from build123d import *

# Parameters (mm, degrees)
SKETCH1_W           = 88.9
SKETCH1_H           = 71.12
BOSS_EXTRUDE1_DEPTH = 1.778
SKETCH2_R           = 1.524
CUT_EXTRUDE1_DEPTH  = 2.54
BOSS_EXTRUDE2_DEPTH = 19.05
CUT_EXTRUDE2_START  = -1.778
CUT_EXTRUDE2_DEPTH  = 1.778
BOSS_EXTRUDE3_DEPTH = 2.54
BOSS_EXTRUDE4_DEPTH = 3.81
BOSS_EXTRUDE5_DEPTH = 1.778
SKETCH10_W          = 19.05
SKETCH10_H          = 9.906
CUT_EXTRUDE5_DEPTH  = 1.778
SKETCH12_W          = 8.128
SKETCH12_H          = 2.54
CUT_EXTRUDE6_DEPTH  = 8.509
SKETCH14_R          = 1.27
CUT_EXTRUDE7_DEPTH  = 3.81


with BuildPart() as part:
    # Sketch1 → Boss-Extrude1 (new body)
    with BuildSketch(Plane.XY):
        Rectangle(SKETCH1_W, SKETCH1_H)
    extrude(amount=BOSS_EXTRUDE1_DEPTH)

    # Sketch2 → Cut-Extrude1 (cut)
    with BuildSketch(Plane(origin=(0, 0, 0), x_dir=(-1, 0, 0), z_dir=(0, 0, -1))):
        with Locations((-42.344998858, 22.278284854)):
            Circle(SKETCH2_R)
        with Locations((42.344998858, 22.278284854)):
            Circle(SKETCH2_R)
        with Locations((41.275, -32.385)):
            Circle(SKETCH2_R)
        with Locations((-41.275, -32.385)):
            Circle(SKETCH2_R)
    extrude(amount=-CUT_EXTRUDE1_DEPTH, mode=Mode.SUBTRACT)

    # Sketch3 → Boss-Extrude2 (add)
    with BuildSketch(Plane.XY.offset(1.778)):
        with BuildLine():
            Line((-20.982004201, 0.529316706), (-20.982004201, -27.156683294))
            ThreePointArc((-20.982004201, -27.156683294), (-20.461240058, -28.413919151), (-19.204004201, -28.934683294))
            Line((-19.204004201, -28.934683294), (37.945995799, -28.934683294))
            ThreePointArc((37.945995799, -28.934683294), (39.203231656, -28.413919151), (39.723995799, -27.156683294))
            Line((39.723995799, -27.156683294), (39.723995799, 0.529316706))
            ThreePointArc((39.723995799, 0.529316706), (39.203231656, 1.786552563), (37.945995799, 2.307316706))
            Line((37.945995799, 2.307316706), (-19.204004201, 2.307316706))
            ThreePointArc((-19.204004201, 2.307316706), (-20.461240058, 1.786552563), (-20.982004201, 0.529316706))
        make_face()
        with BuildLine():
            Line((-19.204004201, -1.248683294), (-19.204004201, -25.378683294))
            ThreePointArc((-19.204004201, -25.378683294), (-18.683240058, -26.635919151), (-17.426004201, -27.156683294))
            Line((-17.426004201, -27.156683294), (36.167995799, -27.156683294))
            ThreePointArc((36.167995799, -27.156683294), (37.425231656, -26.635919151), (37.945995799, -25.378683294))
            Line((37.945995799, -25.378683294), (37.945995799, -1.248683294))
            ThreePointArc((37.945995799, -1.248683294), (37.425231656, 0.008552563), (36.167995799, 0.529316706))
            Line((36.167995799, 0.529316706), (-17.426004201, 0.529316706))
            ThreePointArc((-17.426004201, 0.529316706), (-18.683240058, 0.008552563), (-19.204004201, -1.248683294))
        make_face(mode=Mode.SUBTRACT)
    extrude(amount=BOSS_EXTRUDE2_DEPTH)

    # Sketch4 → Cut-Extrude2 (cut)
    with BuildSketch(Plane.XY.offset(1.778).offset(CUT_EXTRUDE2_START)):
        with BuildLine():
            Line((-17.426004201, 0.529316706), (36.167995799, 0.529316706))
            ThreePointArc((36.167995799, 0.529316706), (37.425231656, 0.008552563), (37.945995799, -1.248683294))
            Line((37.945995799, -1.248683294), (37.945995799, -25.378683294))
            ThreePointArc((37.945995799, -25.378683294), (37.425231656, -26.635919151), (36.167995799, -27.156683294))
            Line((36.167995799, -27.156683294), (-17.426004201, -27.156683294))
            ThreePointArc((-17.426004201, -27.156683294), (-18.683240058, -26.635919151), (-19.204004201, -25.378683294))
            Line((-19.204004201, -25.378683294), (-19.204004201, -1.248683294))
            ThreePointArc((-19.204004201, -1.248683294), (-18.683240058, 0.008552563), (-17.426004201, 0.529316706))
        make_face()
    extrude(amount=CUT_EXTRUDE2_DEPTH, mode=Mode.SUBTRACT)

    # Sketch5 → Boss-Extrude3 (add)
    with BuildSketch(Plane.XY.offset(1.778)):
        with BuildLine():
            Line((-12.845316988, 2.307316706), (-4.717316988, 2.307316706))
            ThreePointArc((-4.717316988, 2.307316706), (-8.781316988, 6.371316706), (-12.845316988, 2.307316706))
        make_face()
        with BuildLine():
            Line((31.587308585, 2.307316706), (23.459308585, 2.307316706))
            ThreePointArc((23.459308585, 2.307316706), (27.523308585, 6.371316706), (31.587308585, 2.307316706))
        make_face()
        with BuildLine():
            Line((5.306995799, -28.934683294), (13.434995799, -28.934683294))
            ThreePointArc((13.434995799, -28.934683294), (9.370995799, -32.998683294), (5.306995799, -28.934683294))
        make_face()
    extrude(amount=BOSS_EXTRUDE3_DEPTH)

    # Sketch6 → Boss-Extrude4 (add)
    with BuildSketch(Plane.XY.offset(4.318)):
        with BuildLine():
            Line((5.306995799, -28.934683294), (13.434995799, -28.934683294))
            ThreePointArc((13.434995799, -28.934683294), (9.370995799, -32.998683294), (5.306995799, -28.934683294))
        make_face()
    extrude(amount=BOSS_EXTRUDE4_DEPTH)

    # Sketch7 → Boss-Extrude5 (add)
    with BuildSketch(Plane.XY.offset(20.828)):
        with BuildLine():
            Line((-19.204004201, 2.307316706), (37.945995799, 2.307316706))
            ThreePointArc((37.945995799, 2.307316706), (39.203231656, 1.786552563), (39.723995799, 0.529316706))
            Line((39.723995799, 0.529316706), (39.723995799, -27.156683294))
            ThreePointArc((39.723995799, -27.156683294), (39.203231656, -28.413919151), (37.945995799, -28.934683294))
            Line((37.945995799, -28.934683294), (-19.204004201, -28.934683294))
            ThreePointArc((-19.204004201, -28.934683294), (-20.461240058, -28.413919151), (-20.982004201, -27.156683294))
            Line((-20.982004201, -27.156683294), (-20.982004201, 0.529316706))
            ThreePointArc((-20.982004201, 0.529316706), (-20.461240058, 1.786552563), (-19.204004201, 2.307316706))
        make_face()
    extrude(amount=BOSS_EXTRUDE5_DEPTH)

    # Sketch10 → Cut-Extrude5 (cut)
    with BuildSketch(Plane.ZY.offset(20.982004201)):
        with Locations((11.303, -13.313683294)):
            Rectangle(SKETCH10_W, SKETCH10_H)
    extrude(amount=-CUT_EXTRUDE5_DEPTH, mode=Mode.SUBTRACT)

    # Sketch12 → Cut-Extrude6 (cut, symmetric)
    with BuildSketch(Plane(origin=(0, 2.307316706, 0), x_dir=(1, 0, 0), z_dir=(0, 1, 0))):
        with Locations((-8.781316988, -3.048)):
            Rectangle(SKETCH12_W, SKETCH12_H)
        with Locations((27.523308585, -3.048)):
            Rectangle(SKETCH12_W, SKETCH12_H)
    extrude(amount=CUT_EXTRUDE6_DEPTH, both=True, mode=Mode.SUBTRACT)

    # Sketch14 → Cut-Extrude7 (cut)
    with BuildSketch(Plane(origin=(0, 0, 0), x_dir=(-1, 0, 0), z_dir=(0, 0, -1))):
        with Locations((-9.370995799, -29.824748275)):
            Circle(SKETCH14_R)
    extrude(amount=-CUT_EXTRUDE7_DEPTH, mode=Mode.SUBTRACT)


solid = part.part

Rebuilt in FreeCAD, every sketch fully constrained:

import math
import FreeCAD as App
import Part
import Sketcher

V = App.Vector
Q = App.Units.Quantity


def add_polygon(sketch, points):
    """Adds a closed chain of lines whose ends are joined by coincident constraints."""
    first, n = sketch.GeometryCount, len(points)
    for a, b in zip(points, points[1:] + points[:1]):
        sketch.addGeometry(Part.LineSegment(App.Vector(*a, 0), App.Vector(*b, 0)), False)
    for i in range(n):
        sketch.addConstraint(Sketcher.Constraint("Coincident", first + i, 2, first + (i + 1) % n, 1))

doc = App.newDocument("Part")
body = doc.addObject("PartDesign::Body", "Body")

# Sketch on XY plane
sketch1 = doc.addObject("Sketcher::SketchObject", "Sketch")
body.addObject(sketch1)
sketch1.AttachmentSupport = (doc.XY_Plane, [""])
sketch1.MapMode = "FlatFace"
add_polygon(sketch1, [(-44, 36), (-44, -36), (44, -36), (44, 36)])  # lines 0-3
sketch1.addConstraint(Sketcher.Constraint("Vertical", 0))
sketch1.addConstraint(Sketcher.Constraint("Horizontal", 1))
sketch1.addConstraint(Sketcher.Constraint("Vertical", 2))
sketch1.addConstraint(Sketcher.Constraint("Horizontal", 3))
sketch1.addConstraint(Sketcher.Constraint("Symmetric", 0, 2, 2, 2, -1, 1))
sketch1.addConstraint(Sketcher.Constraint("DistanceX", 1, 1, 1, 2, Q("3.5 in")))
sketch1.addConstraint(Sketcher.Constraint("DistanceY", 0, 2, 0, 1, Q("2.8 in")))
pad1 = doc.addObject("PartDesign::Pad", "Pad")
body.addObject(pad1)
pad1.Profile = sketch1
pad1.Length = Q("0.07 in")

# Sketch on XY plane
sketch2 = doc.addObject("Sketcher::SketchObject", "Sketch001")
body.addObject(sketch2)
sketch2.AttachmentSupport = (doc.XY_Plane, [""])
sketch2.MapMode = "FlatFace"
sketch2.addGeometry(Part.Circle(V(42.3, 22.3, 0), V(0, 0, 1), 1.5), False)
sketch2.addGeometry(Part.Circle(V(-42.3, 22.3, 0), V(0, 0, 1), 1.5), False)
sketch2.addGeometry(Part.Circle(V(-41.3, -32.4, 0), V(0, 0, 1), 1.5), False)
sketch2.addGeometry(Part.Circle(V(41.3, -32.4, 0), V(0, 0, 1), 1.5), False)
sketch2.addConstraint(Sketcher.Constraint("Equal", 0, 1))
sketch2.addConstraint(Sketcher.Constraint("Equal", 1, 2))
sketch2.addConstraint(Sketcher.Constraint("Equal", 2, 3))
sketch2.addConstraint(Sketcher.Constraint("Symmetric", 0, 3, 1, 3, -2))
sketch2.addConstraint(Sketcher.Constraint("Symmetric", 2, 3, 3, 3, -2))
sketch2.addConstraint(Sketcher.Constraint("Diameter", 0, Q("0.12 in")))
sketch2.addConstraint(Sketcher.Constraint("DistanceX", 2, 3, 3, 3, Q("3.25 in")))
sketch2.addConstraint(Sketcher.Constraint("DistanceY", 2, 3, -1, 1, Q("1.275 in")))
sketch2.addConstraint(Sketcher.Constraint("DistanceX", -1, 1, 0, 3, 42.344999))
sketch2.addConstraint(Sketcher.Constraint("DistanceY", -1, 1, 0, 3, 22.278285))
pocket1 = doc.addObject("PartDesign::Pocket", "Pocket")
body.addObject(pocket1)
pocket1.Profile = sketch2
pocket1.Length = Q("0.1 in")
pocket1.Reversed = True

# Sketch on XY plane
sketch3 = doc.addObject("Sketcher::SketchObject", "Sketch002")
body.addObject(sketch3)
sketch3.AttachmentSupport = (doc.XY_Plane, [""])
sketch3.MapMode = "FlatFace"
sketch3.AttachmentOffset = App.Placement(V(0, 0, 0.07 * 25.4), App.Rotation())
sketch3.addGeometry(Part.LineSegment(V(-21, 0.5, 0), V(-21, -27.2, 0)), False)
sketch3.addGeometry(Part.ArcOfCircle(Part.Circle(V(-19.2, -27.2, 0), V(0, 0, 1), 1.8), math.radians(180), math.radians(270)), False)
sketch3.addGeometry(Part.LineSegment(V(-19.2, -28.9, 0), V(37.9, -28.9, 0)), False)
sketch3.addGeometry(Part.ArcOfCircle(Part.Circle(V(37.9, -27.2, 0), V(0, 0, 1), 1.8), math.radians(-90), math.radians(0)), False)
sketch3.addGeometry(Part.LineSegment(V(39.7, -27.2, 0), V(39.7, 0.5, 0)), False)
sketch3.addGeometry(Part.ArcOfCircle(Part.Circle(V(37.9, 0.5, 0), V(0, 0, 1), 1.8), math.radians(0), math.radians(90)), False)
sketch3.addGeometry(Part.LineSegment(V(37.9, 2.3, 0), V(-19.2, 2.3, 0)), False)
sketch3.addGeometry(Part.ArcOfCircle(Part.Circle(V(-19.2, 0.5, 0), V(0, 0, 1), 1.8), math.radians(90), math.radians(180)), False)
sketch3.addGeometry(Part.LineSegment(V(-19.2, -25.4, 0), V(-19.2, -1.2, 0)), False)
sketch3.addGeometry(Part.ArcOfCircle(Part.Circle(V(-17.4, -1.2, 0), V(0, 0, 1), 1.8), math.radians(90), math.radians(180)), False)
sketch3.addGeometry(Part.LineSegment(V(-17.4, 0.5, 0), V(36.2, 0.5, 0)), False)
sketch3.addGeometry(Part.ArcOfCircle(Part.Circle(V(36.2, -1.2, 0), V(0, 0, 1), 1.8), math.radians(0), math.radians(90)), False)
sketch3.addGeometry(Part.LineSegment(V(37.9, -1.2, 0), V(37.9, -25.4, 0)), False)
sketch3.addGeometry(Part.ArcOfCircle(Part.Circle(V(36.2, -25.4, 0), V(0, 0, 1), 1.8), math.radians(-90), math.radians(0)), False)
sketch3.addGeometry(Part.LineSegment(V(36.2, -27.2, 0), V(-17.4, -27.2, 0)), False)
sketch3.addGeometry(Part.ArcOfCircle(Part.Circle(V(-17.4, -25.4, 0), V(0, 0, 1), 1.8), math.radians(180), math.radians(270)), False)
sketch3.addConstraint(Sketcher.Constraint("Tangent", 0, 2, 1, 1))
sketch3.addConstraint(Sketcher.Constraint("Tangent", 1, 2, 2, 1))
sketch3.addConstraint(Sketcher.Constraint("Tangent", 2, 2, 3, 1))
sketch3.addConstraint(Sketcher.Constraint("Tangent", 3, 2, 4, 1))
sketch3.addConstraint(Sketcher.Constraint("Tangent", 4, 2, 5, 1))
sketch3.addConstraint(Sketcher.Constraint("Tangent", 5, 2, 6, 1))
sketch3.addConstraint(Sketcher.Constraint("Tangent", 6, 2, 7, 1))
sketch3.addConstraint(Sketcher.Constraint("Tangent", 7, 2, 0, 1))
sketch3.addConstraint(Sketcher.Constraint("Tangent", 8, 2, 9, 2))
sketch3.addConstraint(Sketcher.Constraint("Tangent", 9, 1, 10, 1))
sketch3.addConstraint(Sketcher.Constraint("Tangent", 10, 2, 11, 2))
sketch3.addConstraint(Sketcher.Constraint("Tangent", 11, 1, 12, 1))
sketch3.addConstraint(Sketcher.Constraint("Tangent", 12, 2, 13, 2))
sketch3.addConstraint(Sketcher.Constraint("Tangent", 13, 1, 14, 1))
sketch3.addConstraint(Sketcher.Constraint("Tangent", 14, 2, 15, 2))
sketch3.addConstraint(Sketcher.Constraint("Tangent", 15, 1, 8, 1))
sketch3.addConstraint(Sketcher.Constraint("Vertical", 0))
sketch3.addConstraint(Sketcher.Constraint("Horizontal", 2))
sketch3.addConstraint(Sketcher.Constraint("Vertical", 4))
sketch3.addConstraint(Sketcher.Constraint("Horizontal", 6))
sketch3.addConstraint(Sketcher.Constraint("Vertical", 8))
sketch3.addConstraint(Sketcher.Constraint("Horizontal", 10))
sketch3.addConstraint(Sketcher.Constraint("Vertical", 12))
sketch3.addConstraint(Sketcher.Constraint("Horizontal", 14))
sketch3.addConstraint(Sketcher.Constraint("Equal", 1, 3))
sketch3.addConstraint(Sketcher.Constraint("Equal", 3, 5))
sketch3.addConstraint(Sketcher.Constraint("Equal", 5, 7))
sketch3.addConstraint(Sketcher.Constraint("Equal", 7, 9))
sketch3.addConstraint(Sketcher.Constraint("Equal", 9, 11))
sketch3.addConstraint(Sketcher.Constraint("Equal", 11, 13))
sketch3.addConstraint(Sketcher.Constraint("Equal", 13, 15))
sketch3.addConstraint(Sketcher.Constraint("Horizontal", 7, 2, 9, 1))
sketch3.addConstraint(Sketcher.Constraint("Horizontal", 3, 2, 13, 1))
sketch3.addConstraint(Sketcher.Constraint("Vertical", 6, 2, 8, 2))
sketch3.addConstraint(Sketcher.Constraint("Vertical", 5, 2, 11, 1))
sketch3.addConstraint(Sketcher.Constraint("Radius", 1, Q("0.07 in")))
sketch3.addConstraint(Sketcher.Constraint("DistanceX", 2, 1, 2, 2, Q("2.25 in")))
sketch3.addConstraint(Sketcher.Constraint("DistanceY", 0, 2, 0, 1, Q("1.09 in")))
sketch3.addConstraint(Sketcher.Constraint("DistanceX", 1, 3, -1, 1, 19.204004))
sketch3.addConstraint(Sketcher.Constraint("DistanceY", 1, 3, -1, 1, 27.156683))
pad2 = doc.addObject("PartDesign::Pad", "Pad001")
body.addObject(pad2)
pad2.Profile = sketch3
pad2.Length = Q("0.75 in")

# Sketch on XY plane
sketch4 = doc.addObject("Sketcher::SketchObject", "Sketch003")
body.addObject(sketch4)
sketch4.AttachmentSupport = (doc.XY_Plane, [""])
sketch4.MapMode = "FlatFace"
sketch4.addGeometry(Part.LineSegment(V(36.2, 0.5, 0), V(-17.4, 0.5, 0)), False)
sketch4.addGeometry(Part.ArcOfCircle(Part.Circle(V(-17.4, -1.2, 0), V(0, 0, 1), 1.8), math.radians(90), math.radians(180)), False)
sketch4.addGeometry(Part.LineSegment(V(-19.2, -1.2, 0), V(-19.2, -25.4, 0)), False)
sketch4.addGeometry(Part.ArcOfCircle(Part.Circle(V(-17.4, -25.4, 0), V(0, 0, 1), 1.8), math.radians(180), math.radians(270)), False)
sketch4.addGeometry(Part.LineSegment(V(-17.4, -27.2, 0), V(36.2, -27.2, 0)), False)
sketch4.addGeometry(Part.ArcOfCircle(Part.Circle(V(36.2, -25.4, 0), V(0, 0, 1), 1.8), math.radians(-90), math.radians(0)), False)
sketch4.addGeometry(Part.LineSegment(V(37.9, -25.4, 0), V(37.9, -1.2, 0)), False)
sketch4.addGeometry(Part.ArcOfCircle(Part.Circle(V(36.2, -1.2, 0), V(0, 0, 1), 1.8), math.radians(0), math.radians(90)), False)
sketch4.addConstraint(Sketcher.Constraint("Tangent", 0, 2, 1, 1))
sketch4.addConstraint(Sketcher.Constraint("Tangent", 1, 2, 2, 1))
sketch4.addConstraint(Sketcher.Constraint("Tangent", 2, 2, 3, 1))
sketch4.addConstraint(Sketcher.Constraint("Tangent", 3, 2, 4, 1))
sketch4.addConstraint(Sketcher.Constraint("Tangent", 4, 2, 5, 1))
sketch4.addConstraint(Sketcher.Constraint("Tangent", 5, 2, 6, 1))
sketch4.addConstraint(Sketcher.Constraint("Tangent", 6, 2, 7, 1))
sketch4.addConstraint(Sketcher.Constraint("Tangent", 7, 2, 0, 1))
sketch4.addConstraint(Sketcher.Constraint("Horizontal", 0))
sketch4.addConstraint(Sketcher.Constraint("Vertical", 2))
sketch4.addConstraint(Sketcher.Constraint("Horizontal", 4))
sketch4.addConstraint(Sketcher.Constraint("Vertical", 6))
sketch4.addConstraint(Sketcher.Constraint("Equal", 1, 3))
sketch4.addConstraint(Sketcher.Constraint("Equal", 3, 5))
sketch4.addConstraint(Sketcher.Constraint("Equal", 5, 7))
sketch4.addConstraint(Sketcher.Constraint("Radius", 1, Q("0.07 in")))
sketch4.addConstraint(Sketcher.Constraint("DistanceX", 0, 2, 0, 1, Q("2.11 in")))
sketch4.addConstraint(Sketcher.Constraint("DistanceY", 2, 2, 2, 1, Q("0.95 in")))
sketch4.addConstraint(Sketcher.Constraint("DistanceX", 1, 3, -1, 1, 17.426004))
sketch4.addConstraint(Sketcher.Constraint("DistanceY", 1, 3, -1, 1, 1.248683))
pocket2 = doc.addObject("PartDesign::Pocket", "Pocket001")
body.addObject(pocket2)
pocket2.Profile = sketch4
pocket2.Length = Q("0.07 in")
pocket2.Reversed = True

# Sketch on XY plane
sketch5 = doc.addObject("Sketcher::SketchObject", "Sketch004")
body.addObject(sketch5)
sketch5.AttachmentSupport = (doc.XY_Plane, [""])
sketch5.MapMode = "FlatFace"
sketch5.AttachmentOffset = App.Placement(V(0, 0, 0.07 * 25.4), App.Rotation())
sketch5.addGeometry(Part.LineSegment(V(-12.8, 2.3, 0), V(-4.7, 2.3, 0)), False)
sketch5.addGeometry(Part.ArcOfCircle(Part.Circle(V(-8.8, 2.3, 0), V(0, 0, 1), 4.1), math.radians(0), math.radians(180)), False)
sketch5.addGeometry(Part.LineSegment(V(23.5, 2.3, 0), V(31.6, 2.3, 0)), False)
sketch5.addGeometry(Part.ArcOfCircle(Part.Circle(V(27.5, 2.3, 0), V(0, 0, 1), 4.1), math.radians(0), math.radians(180)), False)
sketch5.addGeometry(Part.LineSegment(V(13.4, -28.9, 0), V(5.3, -28.9, 0)), False)
sketch5.addGeometry(Part.ArcOfCircle(Part.Circle(V(9.4, -28.9, 0), V(0, 0, 1), 4.1), math.radians(180), math.radians(360)), False)
sketch5.addConstraint(Sketcher.Constraint("Coincident", 0, 1, 1, 2))
sketch5.addConstraint(Sketcher.Constraint("Coincident", 1, 1, 0, 2))
sketch5.addConstraint(Sketcher.Constraint("Coincident", 2, 1, 3, 2))
sketch5.addConstraint(Sketcher.Constraint("Coincident", 3, 1, 2, 2))
sketch5.addConstraint(Sketcher.Constraint("Coincident", 4, 1, 5, 2))
sketch5.addConstraint(Sketcher.Constraint("Coincident", 5, 1, 4, 2))
sketch5.addConstraint(Sketcher.Constraint("Horizontal", 0))
sketch5.addConstraint(Sketcher.Constraint("Horizontal", 2))
sketch5.addConstraint(Sketcher.Constraint("Horizontal", 4))
sketch5.addConstraint(Sketcher.Constraint("Equal", 1, 3))
sketch5.addConstraint(Sketcher.Constraint("Equal", 3, 5))
sketch5.addConstraint(Sketcher.Constraint("Horizontal", 1, 3, 3, 3))
sketch5.addConstraint(Sketcher.Constraint("Horizontal", 3, 3, 0, 1))
sketch5.addConstraint(Sketcher.Constraint("Horizontal", 1, 1, 2, 1))
sketch5.addConstraint(Sketcher.Constraint("Horizontal", 5, 3, 4, 1))
sketch5.addConstraint(Sketcher.Constraint("Radius", 1, Q("0.16 in")))
sketch5.addConstraint(Sketcher.Constraint("DistanceY", 5, 3, 3, 3, Q("1.23 in")))
sketch5.addConstraint(Sketcher.Constraint("DistanceX", -1, 1, 3, 3, 27.523309))
sketch5.addConstraint(Sketcher.Constraint("DistanceX", 1, 3, -1, 1, 8.781317))
sketch5.addConstraint(Sketcher.Constraint("DistanceY", -1, 1, 1, 3, 2.307317))
sketch5.addConstraint(Sketcher.Constraint("DistanceX", -1, 1, 5, 3, 9.370996))
pad3 = doc.addObject("PartDesign::Pad", "Pad002")
body.addObject(pad3)
pad3.Profile = sketch5
pad3.Length = Q("0.1 in")

# Sketch on XY plane
sketch6 = doc.addObject("Sketcher::SketchObject", "Sketch005")
body.addObject(sketch6)
sketch6.AttachmentSupport = (doc.XY_Plane, [""])
sketch6.MapMode = "FlatFace"
sketch6.AttachmentOffset = App.Placement(V(0, 0, 0.17 * 25.4), App.Rotation())
sketch6.addGeometry(Part.LineSegment(V(13.4, -28.9, 0), V(5.3, -28.9, 0)), False)
sketch6.addGeometry(Part.ArcOfCircle(Part.Circle(V(9.4, -28.9, 0), V(0, 0, 1), 4.1), math.radians(180), math.radians(360)), False)
sketch6.addConstraint(Sketcher.Constraint("Coincident", 0, 1, 1, 2))
sketch6.addConstraint(Sketcher.Constraint("Coincident", 1, 1, 0, 2))
sketch6.addConstraint(Sketcher.Constraint("Horizontal", 0))
sketch6.addConstraint(Sketcher.Constraint("Horizontal", 1, 3, 0, 1))
sketch6.addConstraint(Sketcher.Constraint("Radius", 1, Q("0.16 in")))
sketch6.addConstraint(Sketcher.Constraint("DistanceX", -1, 1, 1, 3, 9.370996))
sketch6.addConstraint(Sketcher.Constraint("DistanceY", 1, 3, -1, 1, 28.934683))
pad4 = doc.addObject("PartDesign::Pad", "Pad003")
body.addObject(pad4)
pad4.Profile = sketch6
pad4.Length = Q("0.15 in")

# Sketch on XY plane
sketch7 = doc.addObject("Sketcher::SketchObject", "Sketch006")
body.addObject(sketch7)
sketch7.AttachmentSupport = (doc.XY_Plane, [""])
sketch7.MapMode = "FlatFace"
sketch7.AttachmentOffset = App.Placement(V(0, 0, 0.82 * 25.4), App.Rotation())
sketch7.addGeometry(Part.LineSegment(V(37.9, 2.3, 0), V(-19.2, 2.3, 0)), False)
sketch7.addGeometry(Part.ArcOfCircle(Part.Circle(V(-19.2, 0.5, 0), V(0, 0, 1), 1.8), math.radians(90), math.radians(180)), False)
sketch7.addGeometry(Part.LineSegment(V(-21, 0.5, 0), V(-21, -27.2, 0)), False)
sketch7.addGeometry(Part.ArcOfCircle(Part.Circle(V(-19.2, -27.2, 0), V(0, 0, 1), 1.8), math.radians(180), math.radians(270)), False)
sketch7.addGeometry(Part.LineSegment(V(-19.2, -28.9, 0), V(37.9, -28.9, 0)), False)
sketch7.addGeometry(Part.ArcOfCircle(Part.Circle(V(37.9, -27.2, 0), V(0, 0, 1), 1.8), math.radians(-90), math.radians(0)), False)
sketch7.addGeometry(Part.LineSegment(V(39.7, -27.2, 0), V(39.7, 0.5, 0)), False)
sketch7.addGeometry(Part.ArcOfCircle(Part.Circle(V(37.9, 0.5, 0), V(0, 0, 1), 1.8), math.radians(0), math.radians(90)), False)
sketch7.addConstraint(Sketcher.Constraint("Tangent", 0, 2, 1, 1))
sketch7.addConstraint(Sketcher.Constraint("Tangent", 1, 2, 2, 1))
sketch7.addConstraint(Sketcher.Constraint("Tangent", 2, 2, 3, 1))
sketch7.addConstraint(Sketcher.Constraint("Tangent", 3, 2, 4, 1))
sketch7.addConstraint(Sketcher.Constraint("Tangent", 4, 2, 5, 1))
sketch7.addConstraint(Sketcher.Constraint("Tangent", 5, 2, 6, 1))
sketch7.addConstraint(Sketcher.Constraint("Tangent", 6, 2, 7, 1))
sketch7.addConstraint(Sketcher.Constraint("Tangent", 7, 2, 0, 1))
sketch7.addConstraint(Sketcher.Constraint("Horizontal", 0))
sketch7.addConstraint(Sketcher.Constraint("Vertical", 2))
sketch7.addConstraint(Sketcher.Constraint("Horizontal", 4))
sketch7.addConstraint(Sketcher.Constraint("Vertical", 6))
sketch7.addConstraint(Sketcher.Constraint("Equal", 1, 3))
sketch7.addConstraint(Sketcher.Constraint("Equal", 3, 5))
sketch7.addConstraint(Sketcher.Constraint("Equal", 5, 7))
sketch7.addConstraint(Sketcher.Constraint("Radius", 1, Q("0.07 in")))
sketch7.addConstraint(Sketcher.Constraint("DistanceX", 0, 2, 0, 1, Q("2.25 in")))
sketch7.addConstraint(Sketcher.Constraint("DistanceY", 2, 2, 2, 1, Q("1.09 in")))
sketch7.addConstraint(Sketcher.Constraint("DistanceX", 1, 3, -1, 1, 19.204004))
sketch7.addConstraint(Sketcher.Constraint("DistanceY", -1, 1, 1, 3, 0.529317))
pad5 = doc.addObject("PartDesign::Pad", "Pad004")
body.addObject(pad5)
pad5.Profile = sketch7
pad5.Length = Q("0.07 in")

# Sketch on YZ plane
sketch8 = doc.addObject("Sketcher::SketchObject", "Sketch007")
body.addObject(sketch8)
sketch8.AttachmentSupport = (doc.YZ_Plane, [""])
sketch8.MapMode = "FlatFace"
sketch8.AttachmentOffset = App.Placement(V(0, 0, -20.982004), App.Rotation())
add_polygon(sketch8, [(-8, 2), (-18, 2), (-18, 21), (-8, 21)])  # lines 0-3
sketch8.addConstraint(Sketcher.Constraint("Horizontal", 0))
sketch8.addConstraint(Sketcher.Constraint("Vertical", 1))
sketch8.addConstraint(Sketcher.Constraint("Horizontal", 2))
sketch8.addConstraint(Sketcher.Constraint("Vertical", 3))
sketch8.addConstraint(Sketcher.Constraint("DistanceX", 0, 2, 0, 1, Q("0.39 in")))
sketch8.addConstraint(Sketcher.Constraint("DistanceY", 1, 1, 1, 2, Q("0.75 in")))
sketch8.addConstraint(Sketcher.Constraint("DistanceY", -1, 1, 0, 2, Q("0.07 in")))
sketch8.addConstraint(Sketcher.Constraint("DistanceX", 0, 2, -1, 1, 18.266683))
pocket3 = doc.addObject("PartDesign::Pocket", "Pocket002")
body.addObject(pocket3)
pocket3.Profile = sketch8
pocket3.Length = Q("0.07 in")
pocket3.Reversed = True

# Sketch on XZ plane
sketch9 = doc.addObject("Sketcher::SketchObject", "Sketch008")
body.addObject(sketch9)
sketch9.AttachmentSupport = (doc.XZ_Plane, [""])
sketch9.MapMode = "FlatFace"
sketch9.AttachmentOffset = App.Placement(V(0, 0, -2.307317), App.Rotation())
add_polygon(sketch9, [(-12.8, 1.8), (-12.8, 4.3), (-4.7, 4.3), (-4.7, 1.8)])  # lines 0-3
add_polygon(sketch9, [(23.5, 1.8), (23.5, 4.3), (31.6, 4.3), (31.6, 1.8)])  # lines 4-7
sketch9.addConstraint(Sketcher.Constraint("Vertical", 0))
sketch9.addConstraint(Sketcher.Constraint("Horizontal", 1))
sketch9.addConstraint(Sketcher.Constraint("Vertical", 2))
sketch9.addConstraint(Sketcher.Constraint("Horizontal", 3))
sketch9.addConstraint(Sketcher.Constraint("Vertical", 4))
sketch9.addConstraint(Sketcher.Constraint("Horizontal", 5))
sketch9.addConstraint(Sketcher.Constraint("Vertical", 6))
sketch9.addConstraint(Sketcher.Constraint("Horizontal", 7))
sketch9.addConstraint(Sketcher.Constraint("Horizontal", 1, 2, 4, 2))
sketch9.addConstraint(Sketcher.Constraint("Horizontal", 3, 2, 6, 2))
sketch9.addConstraint(Sketcher.Constraint("Equal", 3, 5))
sketch9.addConstraint(Sketcher.Constraint("DistanceY", 0, 1, 0, 2, Q("0.1 in")))
sketch9.addConstraint(Sketcher.Constraint("DistanceX", 1, 1, 1, 2, Q("0.32 in")))
sketch9.addConstraint(Sketcher.Constraint("DistanceY", -1, 1, 0, 2, Q("0.17 in")))
sketch9.addConstraint(Sketcher.Constraint("DistanceX", -1, 1, 4, 2, 23.459309))
sketch9.addConstraint(Sketcher.Constraint("DistanceX", 0, 2, -1, 1, 12.845317))
pocket4 = doc.addObject("PartDesign::Pocket", "Pocket003")
body.addObject(pocket4)
pocket4.Profile = sketch9
pocket4.Length = Q("0.67 in")
pocket4.Midplane = True

# Sketch on XY plane
sketch10 = doc.addObject("Sketcher::SketchObject", "Sketch009")
body.addObject(sketch10)
sketch10.AttachmentSupport = (doc.XY_Plane, [""])
sketch10.MapMode = "FlatFace"
sketch10.addGeometry(Part.Circle(V(9.4, -29.8, 0), V(0, 0, 1), 1.3), False)
sketch10.addConstraint(Sketcher.Constraint("Diameter", 0, Q("0.1 in")))
sketch10.addConstraint(Sketcher.Constraint("DistanceY", 0, 3, -1, 1, 29.824748))
sketch10.addConstraint(Sketcher.Constraint("DistanceX", -1, 1, 0, 3, 9.370996))
pocket5 = doc.addObject("PartDesign::Pocket", "Pocket004")
body.addObject(pocket5)
pocket5.Profile = sketch10
pocket5.Length = Q("0.15 in")
pocket5.Reversed = True

doc.recompute()
